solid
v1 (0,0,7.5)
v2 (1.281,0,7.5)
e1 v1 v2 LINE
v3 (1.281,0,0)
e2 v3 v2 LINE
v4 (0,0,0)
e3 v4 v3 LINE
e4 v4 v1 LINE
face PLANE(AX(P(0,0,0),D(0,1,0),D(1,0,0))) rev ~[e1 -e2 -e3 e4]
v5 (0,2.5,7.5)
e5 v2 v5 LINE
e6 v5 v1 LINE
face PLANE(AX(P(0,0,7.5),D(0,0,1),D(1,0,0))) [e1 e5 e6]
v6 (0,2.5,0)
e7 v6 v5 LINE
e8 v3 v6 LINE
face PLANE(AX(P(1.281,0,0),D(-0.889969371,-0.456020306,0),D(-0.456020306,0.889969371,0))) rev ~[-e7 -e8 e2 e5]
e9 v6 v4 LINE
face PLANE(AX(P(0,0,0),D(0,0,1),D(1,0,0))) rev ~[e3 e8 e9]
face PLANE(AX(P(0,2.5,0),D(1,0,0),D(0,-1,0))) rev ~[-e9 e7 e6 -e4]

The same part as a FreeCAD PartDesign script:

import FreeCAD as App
import Part
import Sketcher

V = App.Vector
Q = App.Units.Quantity


def add_polygon(sketch, points):
    """Adds a closed chain of lines whose ends are joined by coincident constraints."""
    first, n = sketch.GeometryCount, len(points)
    for a, b in zip(points, points[1:] + points[:1]):
        sketch.addGeometry(Part.LineSegment(App.Vector(*a, 0), App.Vector(*b, 0)), False)
    for i in range(n):
        sketch.addConstraint(Sketcher.Constraint("Coincident", first + i, 2, first + (i + 1) % n, 1))

doc = App.newDocument("Part")
params = doc.addObject("Spreadsheet::Sheet", "Params")
for row, (alias, value) in enumerate([
    ("sketch1_height", "2.5 mm"),
    ("pad1_length", "7.5 mm"),
], start=1):
    params.set(f"A{row}", alias)
    params.set(f"B{row}", "=" + value)
    params.setAlias(f"B{row}", alias)

body = doc.addObject("PartDesign::Body", "Body")

# Sketch on XY plane
sketch1 = doc.addObject("Sketcher::SketchObject", "Sketch")
body.addObject(sketch1)
sketch1.AttachmentSupport = (doc.XY_Plane, [""])
sketch1.MapMode = "FlatFace"
add_polygon(sketch1, [(0, 2.5), (0, 0), (1.3, 0)])  # lines 0-2
sketch1.addConstraint(Sketcher.Constraint("Vertical", 0))
sketch1.addConstraint(Sketcher.Constraint("Horizontal", 1))
sketch1.addConstraint(Sketcher.Constraint("Coincident", 0, 2, -1, 1))
sketch1.addConstraint(Sketcher.Constraint("DistanceY", 0, 2, 0, 1, Q("2.5 mm")))
sketch1.addConstraint(Sketcher.Constraint("DistanceX", 1, 1, 1, 2, Q("1.281 mm")))
sketch1.setExpression("Constraints[6]", "Params.sketch1_height")
pad1 = doc.addObject("PartDesign::Pad", "Pad")
body.addObject(pad1)
pad1.Profile = sketch1
pad1.setExpression("Length", "Params.pad1_length")

doc.recompute()
